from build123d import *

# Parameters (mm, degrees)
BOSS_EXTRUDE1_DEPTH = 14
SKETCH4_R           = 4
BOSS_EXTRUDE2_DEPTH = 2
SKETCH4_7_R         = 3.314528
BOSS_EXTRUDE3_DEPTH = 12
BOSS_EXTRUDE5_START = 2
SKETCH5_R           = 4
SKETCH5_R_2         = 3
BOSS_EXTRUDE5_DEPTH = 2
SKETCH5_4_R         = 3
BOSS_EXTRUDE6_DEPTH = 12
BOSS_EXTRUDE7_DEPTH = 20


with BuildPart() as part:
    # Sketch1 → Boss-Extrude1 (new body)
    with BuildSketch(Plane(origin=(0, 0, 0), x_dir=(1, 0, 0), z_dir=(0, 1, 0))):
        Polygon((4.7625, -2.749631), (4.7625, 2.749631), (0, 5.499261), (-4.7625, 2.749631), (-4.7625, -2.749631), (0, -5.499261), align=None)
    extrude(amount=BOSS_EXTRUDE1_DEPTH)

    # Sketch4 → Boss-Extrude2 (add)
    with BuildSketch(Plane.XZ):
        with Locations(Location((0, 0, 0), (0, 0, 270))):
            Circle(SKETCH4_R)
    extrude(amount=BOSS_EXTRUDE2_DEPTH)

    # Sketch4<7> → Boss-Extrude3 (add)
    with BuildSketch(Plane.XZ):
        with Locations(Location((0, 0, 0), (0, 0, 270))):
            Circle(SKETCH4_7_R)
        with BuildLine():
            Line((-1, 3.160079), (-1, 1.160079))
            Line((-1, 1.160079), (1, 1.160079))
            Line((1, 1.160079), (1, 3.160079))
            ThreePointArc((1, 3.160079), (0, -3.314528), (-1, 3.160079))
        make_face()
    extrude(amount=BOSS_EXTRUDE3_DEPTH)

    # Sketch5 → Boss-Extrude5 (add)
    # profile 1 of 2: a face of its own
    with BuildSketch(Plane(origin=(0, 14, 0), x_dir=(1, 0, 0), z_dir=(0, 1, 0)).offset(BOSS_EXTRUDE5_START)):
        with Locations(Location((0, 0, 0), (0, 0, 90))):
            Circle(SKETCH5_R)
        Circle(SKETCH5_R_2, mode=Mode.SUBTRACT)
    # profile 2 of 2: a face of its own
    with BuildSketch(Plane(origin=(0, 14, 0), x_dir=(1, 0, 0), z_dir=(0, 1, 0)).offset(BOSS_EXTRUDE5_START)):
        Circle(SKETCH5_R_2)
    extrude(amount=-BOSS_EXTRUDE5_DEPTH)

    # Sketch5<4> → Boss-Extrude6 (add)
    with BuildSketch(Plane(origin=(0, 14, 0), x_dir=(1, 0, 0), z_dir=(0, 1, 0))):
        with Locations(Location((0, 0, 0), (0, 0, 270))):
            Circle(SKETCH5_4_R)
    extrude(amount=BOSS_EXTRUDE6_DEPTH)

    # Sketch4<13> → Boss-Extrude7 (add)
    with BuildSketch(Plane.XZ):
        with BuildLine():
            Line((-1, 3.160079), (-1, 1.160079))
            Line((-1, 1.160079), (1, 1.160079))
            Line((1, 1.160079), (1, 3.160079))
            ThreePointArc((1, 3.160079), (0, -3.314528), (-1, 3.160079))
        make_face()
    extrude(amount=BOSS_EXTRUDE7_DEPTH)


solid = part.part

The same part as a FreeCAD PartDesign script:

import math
import FreeCAD as App
import Part
import Sketcher
Q = App.Units.Quantity


def add_polygon(sketch, points):
    """Adds a closed chain of lines whose ends are joined by coincident constraints."""
    first, n = sketch.GeometryCount, len(points)
    for a, b in zip(points, points[1:] + points[:1]):
        sketch.addGeometry(Part.LineSegment(App.Vector(*a, 0), App.Vector(*b, 0)), False)
    for i in range(n):
        sketch.addConstraint(Sketcher.Constraint("Coincident", first + i, 2, first + (i + 1) % n, 1))

doc = App.newDocument("Part")
body = doc.addObject("PartDesign::Body", "Body")

sketch1 = body.newObject("Sketcher::SketchObject", "Sketch")
sketch1.AttachmentSupport = (doc.getObject("XZ_Plane"), [""])
sketch1.MapMode = "FlatFace"
add_polygon(sketch1, [(5, 3), (5, -3), (0, -5), (-5, -3), (-5, 3), (0, 5)])
sketch1.addConstraint([
    Sketcher.Constraint("Vertical", 0),
    Sketcher.Constraint("Vertical", 3),
    Sketcher.Constraint("Symmetric", 0, 2, 3, 2, -1, 1),
    Sketcher.Constraint("Symmetric", 1, 2, 4, 2, -1, 1),
    Sketcher.Constraint("PointOnObject", 1, 2, -2),
    Sketcher.Constraint("Parallel", 2, 5),
    Sketcher.Constraint("Horizontal", 0, 2, 2, 2),
    Sketcher.Constraint("Angle", 1, Q("-150.000006 deg")),
    Sketcher.Constraint("DistanceX", 2, 2, 0, 2, Q("9.525 mm")),
    Sketcher.Constraint("DistanceY", 0, 2, 0, 1, Q("5.499262 mm")),
])
pad1 = body.newObject("PartDesign::Pad", "Pad")
pad1.Profile = sketch1
pad1.Length = 14
pad1.Reversed = True

sketch2 = body.newObject("Sketcher::SketchObject", "Sketch001")
sketch2.AttachmentSupport = (doc.getObject("XZ_Plane"), [""])
sketch2.MapMode = "FlatFace"
sketch2.addGeometry(Part.Circle(App.Vector(0, 0, 0), App.Vector(0, 0, 1), 4), False)
sketch2.addConstraint([
    Sketcher.Constraint("Coincident", 0, 3, -1, 1),
    Sketcher.Constraint("Diameter", 0, Q("8 mm")),
])
pad2 = body.newObject("PartDesign::Pad", "Pad001")
pad2.Profile = sketch2
pad2.Length = 2

sketch3 = body.newObject("Sketcher::SketchObject", "Sketch002")
sketch3.AttachmentSupport = (doc.getObject("XZ_Plane"), [""])
sketch3.MapMode = "FlatFace"
sketch3.addGeometry([
    Part.ArcOfCircle(Part.Circle(App.Vector(0, 0, 0), App.Vector(0, 0, 1), 3.314528), math.radians(107.559861), math.radians(432.440139)),
    Part.LineSegment(App.Vector(1, 3.160078, 0), App.Vector(1, 3.160079, 0)),
    Part.ArcOfCircle(Part.Circle(App.Vector(0, 0, 0), App.Vector(0, 0, 1), 3.314528), math.radians(72.440137), math.radians(107.559863)),
    Part.LineSegment(App.Vector(-1, 3.160079, 0), App.Vector(-1, 3.160078, 0)),
], False)
sketch3.addConstraint([
    Sketcher.Constraint("Coincident", 0, 2, 1, 1),
    Sketcher.Constraint("Coincident", 1, 2, 2, 1),
    Sketcher.Constraint("Coincident", 2, 2, 3, 1),
    Sketcher.Constraint("Coincident", 3, 2, 0, 1),
    Sketcher.Constraint("Horizontal", 1),
    Sketcher.Constraint("Horizontal", 3),
    Sketcher.Constraint("Coincident", 0, 3, -1, 1),
    Sketcher.Constraint("Coincident", 2, 3, -1, 1),
    Sketcher.Constraint("Equal", 0, 2),
    Sketcher.Constraint("Horizontal", 1, 2, 2, 2),
    Sketcher.Constraint("DistanceX", -1, 1, 0, 2, Q("1 mm")),
    Sketcher.Constraint("Radius", 0, Q("3.314528 mm")),
])
pad3 = body.newObject("PartDesign::Pad", "Pad002")
pad3.Profile = sketch3
pad3.Length = 12

sketch4 = body.newObject("Sketcher::SketchObject", "Sketch003")
sketch4.AttachmentSupport = (doc.getObject("XZ_Plane"), [""])
sketch4.MapMode = "FlatFace"
sketch4.AttachmentOffset = App.Placement(App.Vector(0, 0, -16), App.Rotation())
sketch4.addGeometry(Part.Circle(App.Vector(0, 0, 0), App.Vector(0, 0, 1), 4), False)
sketch4.addConstraint([
    Sketcher.Constraint("Coincident", 0, 3, -1, 1),
    Sketcher.Constraint("Diameter", 0, Q("8 mm")),
])
pad4 = body.newObject("PartDesign::Pad", "Pad003")
pad4.Profile = sketch4
pad4.Length = 2

sketch5 = body.newObject("Sketcher::SketchObject", "Sketch004")
sketch5.AttachmentSupport = (doc.getObject("XZ_Plane"), [""])
sketch5.MapMode = "FlatFace"
sketch5.AttachmentOffset = App.Placement(App.Vector(0, 0, -14), App.Rotation())
sketch5.addGeometry(Part.Circle(App.Vector(0, 0, 0), App.Vector(0, 0, 1), 3), False)
sketch5.addConstraint([
    Sketcher.Constraint("Coincident", 0, 3, -1, 1),
    Sketcher.Constraint("Diameter", 0, Q("6 mm")),
])
pad5 = body.newObject("PartDesign::Pad", "Pad004")
pad5.Profile = sketch5
pad5.Length = 12
pad5.Reversed = True

sketch6 = body.newObject("Sketcher::SketchObject", "Sketch005")
sketch6.AttachmentSupport = (doc.getObject("XZ_Plane"), [""])
sketch6.MapMode = "FlatFace"
sketch6.addGeometry([
    Part.LineSegment(App.Vector(-1, 1.2, 0), App.Vector(-1, 3.2, 0)),
    Part.ArcOfCircle(Part.Circle(App.Vector(0, 0, 0), App.Vector(0, 0, 1), 3.3), math.radians(108), math.radians(432)),
    Part.LineSegment(App.Vector(1, 3.2, 0), App.Vector(1, 1.2, 0)),
    Part.LineSegment(App.Vector(1, 1.2, 0), App.Vector(-1, 1.2, 0)),
], False)
sketch6.addConstraint([
    Sketcher.Constraint("Coincident", 0, 2, 1, 1),
    Sketcher.Constraint("Coincident", 1, 2, 2, 1),
    Sketcher.Constraint("Coincident", 2, 2, 3, 1),
    Sketcher.Constraint("Coincident", 3, 2, 0, 1),
    Sketcher.Constraint("Vertical", 0),
    Sketcher.Constraint("Vertical", 2),
    Sketcher.Constraint("Horizontal", 3),
    Sketcher.Constraint("Coincident", 1, 3, -1, 1),
    Sketcher.Constraint("Horizontal", 0, 2, 1, 2),
    Sketcher.Constraint("Equal", 3, 0),
    Sketcher.Constraint("DistanceX", 3, 2, 3, 1, Q("2 mm")),
    Sketcher.Constraint("Radius", 1, Q("3.314528 mm")),
])
pad6 = body.newObject("PartDesign::Pad", "Pad005")
pad6.Profile = sketch6
pad6.Length = 20

doc.recompute()
